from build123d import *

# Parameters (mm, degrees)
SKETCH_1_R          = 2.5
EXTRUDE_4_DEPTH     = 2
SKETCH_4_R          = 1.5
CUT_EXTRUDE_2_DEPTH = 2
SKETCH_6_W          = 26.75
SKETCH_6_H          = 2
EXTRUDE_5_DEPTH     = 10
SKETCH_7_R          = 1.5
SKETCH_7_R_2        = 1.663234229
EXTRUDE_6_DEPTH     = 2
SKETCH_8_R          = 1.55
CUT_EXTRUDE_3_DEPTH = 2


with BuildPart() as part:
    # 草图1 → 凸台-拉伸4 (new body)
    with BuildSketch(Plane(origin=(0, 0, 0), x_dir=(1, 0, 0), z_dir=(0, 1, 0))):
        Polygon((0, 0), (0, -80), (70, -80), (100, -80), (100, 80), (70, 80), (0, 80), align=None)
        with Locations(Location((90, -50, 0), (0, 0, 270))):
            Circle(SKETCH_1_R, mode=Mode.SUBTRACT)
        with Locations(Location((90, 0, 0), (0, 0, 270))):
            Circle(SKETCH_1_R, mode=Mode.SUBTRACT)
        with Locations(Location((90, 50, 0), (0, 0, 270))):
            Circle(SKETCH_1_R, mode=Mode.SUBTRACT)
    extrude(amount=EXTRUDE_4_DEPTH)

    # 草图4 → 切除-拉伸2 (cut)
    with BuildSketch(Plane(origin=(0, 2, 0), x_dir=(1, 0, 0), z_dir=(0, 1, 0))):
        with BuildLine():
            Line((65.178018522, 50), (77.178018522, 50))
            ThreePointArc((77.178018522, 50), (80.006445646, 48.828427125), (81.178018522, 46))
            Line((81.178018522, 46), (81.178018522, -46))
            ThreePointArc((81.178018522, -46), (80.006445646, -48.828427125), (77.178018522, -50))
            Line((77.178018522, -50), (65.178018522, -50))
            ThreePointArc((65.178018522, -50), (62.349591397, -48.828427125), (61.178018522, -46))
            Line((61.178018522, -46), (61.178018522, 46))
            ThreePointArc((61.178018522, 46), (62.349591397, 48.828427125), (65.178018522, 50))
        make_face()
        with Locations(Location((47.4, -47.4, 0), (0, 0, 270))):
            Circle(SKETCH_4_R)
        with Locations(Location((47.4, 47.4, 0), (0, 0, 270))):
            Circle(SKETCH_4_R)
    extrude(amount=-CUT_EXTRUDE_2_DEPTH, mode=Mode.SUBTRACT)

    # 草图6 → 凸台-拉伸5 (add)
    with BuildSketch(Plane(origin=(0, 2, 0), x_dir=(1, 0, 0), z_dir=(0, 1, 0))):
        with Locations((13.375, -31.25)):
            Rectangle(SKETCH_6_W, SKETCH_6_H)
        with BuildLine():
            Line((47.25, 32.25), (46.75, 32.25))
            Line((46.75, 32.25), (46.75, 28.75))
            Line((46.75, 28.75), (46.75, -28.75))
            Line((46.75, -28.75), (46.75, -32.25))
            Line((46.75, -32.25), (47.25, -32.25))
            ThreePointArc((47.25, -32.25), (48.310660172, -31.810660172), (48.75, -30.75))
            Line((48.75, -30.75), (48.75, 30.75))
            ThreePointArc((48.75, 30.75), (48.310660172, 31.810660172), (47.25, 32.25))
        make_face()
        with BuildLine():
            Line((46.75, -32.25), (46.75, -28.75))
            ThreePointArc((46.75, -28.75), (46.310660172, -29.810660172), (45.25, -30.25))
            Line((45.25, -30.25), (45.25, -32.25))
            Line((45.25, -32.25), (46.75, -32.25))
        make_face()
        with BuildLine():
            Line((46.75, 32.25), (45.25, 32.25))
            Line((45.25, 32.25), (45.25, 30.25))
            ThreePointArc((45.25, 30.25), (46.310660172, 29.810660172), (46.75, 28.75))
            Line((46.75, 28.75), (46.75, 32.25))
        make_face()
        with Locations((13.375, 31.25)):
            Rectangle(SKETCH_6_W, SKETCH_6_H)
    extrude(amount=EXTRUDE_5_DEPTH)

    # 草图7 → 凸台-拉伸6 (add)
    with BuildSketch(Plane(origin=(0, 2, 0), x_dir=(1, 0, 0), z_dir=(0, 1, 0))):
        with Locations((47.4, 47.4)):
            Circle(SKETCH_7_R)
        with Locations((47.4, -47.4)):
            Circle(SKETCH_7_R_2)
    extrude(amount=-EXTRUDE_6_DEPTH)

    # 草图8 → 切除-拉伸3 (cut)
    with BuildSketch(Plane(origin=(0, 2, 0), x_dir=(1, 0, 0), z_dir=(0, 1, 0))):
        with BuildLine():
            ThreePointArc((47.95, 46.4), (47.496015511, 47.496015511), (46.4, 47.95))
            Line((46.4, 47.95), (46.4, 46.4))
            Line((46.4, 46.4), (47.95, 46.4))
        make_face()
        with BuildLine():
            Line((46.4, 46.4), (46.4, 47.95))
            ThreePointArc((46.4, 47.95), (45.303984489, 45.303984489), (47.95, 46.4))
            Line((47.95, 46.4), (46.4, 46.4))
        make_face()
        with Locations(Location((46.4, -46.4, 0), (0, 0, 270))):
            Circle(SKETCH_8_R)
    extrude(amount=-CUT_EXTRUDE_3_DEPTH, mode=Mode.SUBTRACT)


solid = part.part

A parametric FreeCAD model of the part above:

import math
import FreeCAD as App
import Part
import Sketcher

V = App.Vector


def add_polygon(sketch, points):
    """Adds a closed chain of lines whose ends are joined by coincident constraints."""
    first, n = sketch.GeometryCount, len(points)
    for a, b in zip(points, points[1:] + points[:1]):
        sketch.addGeometry(Part.LineSegment(App.Vector(*a, 0), App.Vector(*b, 0)), False)
    for i in range(n):
        sketch.addConstraint(Sketcher.Constraint("Coincident", first + i, 2, first + (i + 1) % n, 1))

doc = App.newDocument("Part")
params = doc.addObject("Spreadsheet::Sheet", "Params")
for row, (alias, value) in enumerate([
    ("sketch1_diameter", "5 mm"),
    ("sketch1_width", "100 mm"),
    ("sketch1_height", "160 mm"),
    ("pad1_length", "2 mm"),
    ("sketch2_diameter", "3 mm"),
    ("sketch2_radius", "4 mm"),
    ("sketch2_width", "12 mm"),
    ("sketch2_height", "92 mm"),
    ("pocket1_length", "2 mm"),
    ("sketch3_radius", "1.5 mm"),
    ("sketch3_width", "2 mm"),
    ("sketch3_height", "57.5 mm"),
    ("sketch3_width2", "26.75 mm"),
    ("pad2_length", "10 mm"),
    ("sketch4_diameter", "3 mm"),
    ("pad3_length", "2 mm"),
    ("sketch5_diameter", "3.1 mm"),
    ("pocket2_length", "2 mm"),
], start=1):
    params.set(f"A{row}", alias)
    params.set(f"B{row}", "=" + value)
    params.setAlias(f"B{row}", alias)

body = doc.addObject("PartDesign::Body", "Body")

# Sketch on XZ plane
sketch1 = doc.addObject("Sketcher::SketchObject", "Sketch")
body.addObject(sketch1)
sketch1.AttachmentSupport = (doc.XZ_Plane, [""])
sketch1.MapMode = "FlatFace"
add_polygon(sketch1, [(0, 80), (100, 80), (100, -80), (0, -80)])  # lines 0-3
sketch1.addGeometry(Part.Circle(V(90, 50, 0), V(0, 0, 1), 2.5), False)  # 4
sketch1.addGeometry(Part.Circle(V(90, 0, 0), V(0, 0, 1), 2.5), False)  # 5
sketch1.addGeometry(Part.Circle(V(90, -50, 0), V(0, 0, 1), 2.5), False)  # 6
sketch1.addConstraint(Sketcher.Constraint("Horizontal", 0))
sketch1.addConstraint(Sketcher.Constraint("Vertical", 1))
sketch1.addConstraint(Sketcher.Constraint("Horizontal", 2))
sketch1.addConstraint(Sketcher.Constraint("Vertical", 3))
sketch1.addConstraint(Sketcher.Constraint("Equal", 4, 5))
sketch1.addConstraint(Sketcher.Constraint("Equal", 5, 6))
sketch1.addConstraint(Sketcher.Constraint("Symmetric", 2, 2, 3, 2, -1, 1))
sketch1.addConstraint(Sketcher.Constraint("Symmetric", 4, 3, 6, 3, -1))
sketch1.addConstraint(Sketcher.Constraint("PointOnObject", 5, 3, -1))
sketch1.addConstraint(Sketcher.Constraint("Vertical", 4, 3, 5, 3))
sketch1.addConstraint(Sketcher.Constraint("Diameter", 4, 5.0))
sketch1.addConstraint(Sketcher.Constraint("DistanceX", 0, 1, 0, 2, 100.0))
sketch1.addConstraint(Sketcher.Constraint("DistanceY", 1, 2, 1, 1, 160.0))
sketch1.addConstraint(Sketcher.Constraint("DistanceX", -1, 1, 4, 3, 90.0))
sketch1.addConstraint(Sketcher.Constraint("DistanceY", -1, 1, 4, 3, 50.0))
sketch1.setExpression("Constraints[14]", "Params.sketch1_diameter")
sketch1.setExpression("Constraints[15]", "Params.sketch1_width")
sketch1.setExpression("Constraints[16]", "Params.sketch1_height")
pad1 = doc.addObject("PartDesign::Pad", "Pad")
body.addObject(pad1)
pad1.Profile = sketch1
pad1.setExpression("Length", "Params.pad1_length")
pad1.Reversed = True

# Sketch on XZ plane
sketch2 = doc.addObject("Sketcher::SketchObject", "Sketch001")
body.addObject(sketch2)
sketch2.AttachmentSupport = (doc.XZ_Plane, [""])
sketch2.MapMode = "FlatFace"
sketch2.AttachmentOffset = App.Placement(V(0, 0, -2), App.Rotation())
sketch2.addGeometry(Part.LineSegment(V(77.178019, -50, 0), V(65.178019, -50, 0)), False)
sketch2.addGeometry(Part.ArcOfCircle(Part.Circle(V(65.178019, -46, 0), V(0, 0, 1), 4), math.radians(180), math.radians(270)), False)
sketch2.addGeometry(Part.LineSegment(V(61.178019, -46, 0), V(61.178019, 46, 0)), False)
sketch2.addGeometry(Part.ArcOfCircle(Part.Circle(V(65.178019, 46, 0), V(0, 0, 1), 4), math.radians(90), math.radians(180)), False)
sketch2.addGeometry(Part.LineSegment(V(65.178019, 50, 0), V(77.178019, 50, 0)), False)
sketch2.addGeometry(Part.ArcOfCircle(Part.Circle(V(77.178019, 46, 0), V(0, 0, 1), 4), math.radians(0), math.radians(90)), False)
sketch2.addGeometry(Part.LineSegment(V(81.178019, 46, 0), V(81.178019, -46, 0)), False)
sketch2.addGeometry(Part.ArcOfCircle(Part.Circle(V(77.178019, -46, 0), V(0, 0, 1), 4), math.radians(-90), math.radians(0)), False)
sketch2.addGeometry(Part.Circle(V(47.4, 47.4, 0), V(0, 0, 1), 1.5), False)
sketch2.addGeometry(Part.Circle(V(47.4, -47.4, 0), V(0, 0, 1), 1.5), False)
sketch2.addConstraint(Sketcher.Constraint("Tangent", 0, 2, 1, 2))
sketch2.addConstraint(Sketcher.Constraint("Tangent", 1, 1, 2, 1))
sketch2.addConstraint(Sketcher.Constraint("Tangent", 2, 2, 3, 2))
sketch2.addConstraint(Sketcher.Constraint("Tangent", 3, 1, 4, 1))
sketch2.addConstraint(Sketcher.Constraint("Tangent", 4, 2, 5, 2))
sketch2.addConstraint(Sketcher.Constraint("Tangent", 5, 1, 6, 1))
sketch2.addConstraint(Sketcher.Constraint("Tangent", 6, 2, 7, 2))
sketch2.addConstraint(Sketcher.Constraint("Tangent", 7, 1, 0, 1))
sketch2.addConstraint(Sketcher.Constraint("Horizontal", 0))
sketch2.addConstraint(Sketcher.Constraint("Vertical", 2))
sketch2.addConstraint(Sketcher.Constraint("Horizontal", 4))
sketch2.addConstraint(Sketcher.Constraint("Vertical", 6))
sketch2.addConstraint(Sketcher.Constraint("Equal", 1, 3))
sketch2.addConstraint(Sketcher.Constraint("Equal", 3, 5))
sketch2.addConstraint(Sketcher.Constraint("Equal", 5, 7))
sketch2.addConstraint(Sketcher.Constraint("Equal", 8, 9))
sketch2.addConstraint(Sketcher.Constraint("Symmetric", 8, 3, 9, 3, -1))
sketch2.addConstraint(Sketcher.Constraint("Diameter", 8, 3.0))
sketch2.addConstraint(Sketcher.Constraint("Radius", 1, 4.0))
sketch2.addConstraint(Sketcher.Constraint("DistanceX", 0, 2, 0, 1, 12.0))
sketch2.addConstraint(Sketcher.Constraint("DistanceY", 2, 1, 2, 2, 92.0))
sketch2.addConstraint(Sketcher.Constraint("DistanceY", 1, 3, -1, 1, 46.0))
sketch2.addConstraint(Sketcher.Constraint("DistanceX", -1, 1, 8, 3, 47.4))
sketch2.addConstraint(Sketcher.Constraint("DistanceY", -1, 1, 8, 3, 47.4))
sketch2.addConstraint(Sketcher.Constraint("DistanceX", -1, 1, 1, 3, 65.178019))
sketch2.setExpression("Constraints[17]", "Params.sketch2_diameter")
sketch2.setExpression("Constraints[18]", "Params.sketch2_radius")
sketch2.setExpression("Constraints[19]", "Params.sketch2_width")
sketch2.setExpression("Constraints[20]", "Params.sketch2_height")
pocket1 = doc.addObject("PartDesign::Pocket", "Pocket")
body.addObject(pocket1)
pocket1.Profile = sketch2
pocket1.setExpression("Length", "Params.pocket1_length")
pocket1.Reversed = True

# Sketch on XZ plane
sketch3 = doc.addObject("Sketcher::SketchObject", "Sketch002")
body.addObject(sketch3)
sketch3.AttachmentSupport = (doc.XZ_Plane, [""])
sketch3.MapMode = "FlatFace"
sketch3.AttachmentOffset = App.Placement(V(0, 0, -2), App.Rotation())
add_polygon(sketch3, [(0, 30.25), (0, 32.25), (26.75, 32.25), (26.75, 30.25)])  # lines 0-3
sketch3.addGeometry(Part.LineSegment(V(47.25, -32.25, 0), V(45.25, -32.25, 0)), False)  # 4
sketch3.addGeometry(Part.LineSegment(V(45.25, -32.25, 0), V(45.25, -30.25, 0)), False)  # 5
sketch3.addGeometry(Part.ArcOfCircle(Part.Circle(V(45.25, -28.75, 0), V(0, 0, 1), 1.5), math.radians(-90), math.radians(0)), False)  # 6
sketch3.addGeometry(Part.LineSegment(V(46.75, -28.75, 0), V(46.75, 28.75, 0)), False)  # 7
sketch3.addGeometry(Part.ArcOfCircle(Part.Circle(V(45.25, 28.75, 0), V(0, 0, 1), 1.5), math.radians(0), math.radians(90)), False)  # 8
sketch3.addGeometry(Part.LineSegment(V(45.25, 30.25, 0), V(45.25, 32.25, 0)), False)  # 9
sketch3.addGeometry(Part.LineSegment(V(45.25, 32.25, 0), V(47.25, 32.25, 0)), False)  # 10
sketch3.addGeometry(Part.ArcOfCircle(Part.Circle(V(47.25, 30.75, 0), V(0, 0, 1), 1.5), math.radians(0), math.radians(90)), False)  # 11
sketch3.addGeometry(Part.LineSegment(V(48.75, 30.75, 0), V(48.75, -30.75, 0)), False)  # 12
sketch3.addGeometry(Part.ArcOfCircle(Part.Circle(V(47.25, -30.75, 0), V(0, 0, 1), 1.5), math.radians(-90), math.radians(0)), False)  # 13
add_polygon(sketch3, [(0, -32.25), (0, -30.25), (26.75, -30.25), (26.75, -32.25)])  # lines 14-17
sketch3.addConstraint(Sketcher.Constraint("Coincident", 4, 2, 5, 1))
sketch3.addConstraint(Sketcher.Constraint("Coincident", 5, 2, 6, 1))
sketch3.addConstraint(Sketcher.Constraint("Tangent", 6, 2, 7, 1))
sketch3.addConstraint(Sketcher.Constraint("Tangent", 7, 2, 8, 1))
sketch3.addConstraint(Sketcher.Constraint("Coincident", 8, 2, 9, 1))
sketch3.addConstraint(Sketcher.Constraint("Coincident", 9, 2, 10, 1))
sketch3.addConstraint(Sketcher.Constraint("Tangent", 10, 2, 11, 2))
sketch3.addConstraint(Sketcher.Constraint("Tangent", 11, 1, 12, 1))
sketch3.addConstraint(Sketcher.Constraint("Tangent", 12, 2, 13, 2))
sketch3.addConstraint(Sketcher.Constraint("Tangent", 13, 1, 4, 1))
sketch3.addConstraint(Sketcher.Constraint("Vertical", 0))
sketch3.addConstraint(Sketcher.Constraint("Horizontal", 1))
sketch3.addConstraint(Sketcher.Constraint("Vertical", 2))
sketch3.addConstraint(Sketcher.Constraint("Horizontal", 3))
sketch3.addConstraint(Sketcher.Constraint("Horizontal", 4))
sketch3.addConstraint(Sketcher.Constraint("Vertical", 5))
sketch3.addConstraint(Sketcher.Constraint("Vertical", 7))
sketch3.addConstraint(Sketcher.Constraint("Vertical", 9))
sketch3.addConstraint(Sketcher.Constraint("Horizontal", 10))
sketch3.addConstraint(Sketcher.Constraint("Vertical", 12))
sketch3.addConstraint(Sketcher.Constraint("Vertical", 14))
sketch3.addConstraint(Sketcher.Constraint("Horizontal", 15))
sketch3.addConstraint(Sketcher.Constraint("Vertical", 16))
sketch3.addConstraint(Sketcher.Constraint("Horizontal", 17))
sketch3.addConstraint(Sketcher.Constraint("Equal", 6, 8))
sketch3.addConstraint(Sketcher.Constraint("Equal", 8, 11))
sketch3.addConstraint(Sketcher.Constraint("Equal", 11, 13))
sketch3.addConstraint(Sketcher.Constraint("Symmetric", 3, 2, 14, 2, -1, 1))
sketch3.addConstraint(Sketcher.Constraint("Symmetric", 5, 2, 8, 2, -1))
sketch3.addConstraint(Sketcher.Constraint("Symmetric", 1, 2, 16, 2, -1))
sketch3.addConstraint(Sketcher.Constraint("PointOnObject", 0, 2, -2))
sketch3.addConstraint(Sketcher.Constraint("Horizontal", 3, 2, 8, 2))
sketch3.addConstraint(Sketcher.Constraint("Horizontal", 1, 2, 9, 2))
sketch3.addConstraint(Sketcher.Constraint("Horizontal", 13, 1, 16, 2))
sketch3.addConstraint(Sketcher.Constraint("Vertical", 8, 3, 4, 2))
sketch3.addConstraint(Sketcher.Constraint("Equal", 10, 0))
sketch3.addConstraint(Sketcher.Constraint("Radius", 6, 1.5))
sketch3.addConstraint(Sketcher.Constraint("DistanceX", 4, 2, 4, 1, 2.0))
sketch3.addConstraint(Sketcher.Constraint("DistanceY", 7, 1, 7, 2, 57.5))
sketch3.addConstraint(Sketcher.Constraint("DistanceX", 2, 2, 7, 2, 20.0))
sketch3.addConstraint(Sketcher.Constraint("DistanceX", 1, 1, 1, 2, 26.75))
sketch3.setExpression("Constraints[44]", "Params.sketch3_radius")
sketch3.setExpression("Constraints[45]", "Params.sketch3_width")
sketch3.setExpression("Constraints[46]", "Params.sketch3_height")
sketch3.setExpression("Constraints[48]", "Params.sketch3_width2")
pad2 = doc.addObject("PartDesign::Pad", "Pad001")
body.addObject(pad2)
pad2.Profile = sketch3
pad2.setExpression("Length", "Params.pad2_length")
pad2.Reversed = True

# Sketch on XZ plane
sketch4 = doc.addObject("Sketcher::SketchObject", "Sketch003")
body.addObject(sketch4)
sketch4.AttachmentSupport = (doc.XZ_Plane, [""])
sketch4.MapMode = "FlatFace"
sketch4.AttachmentOffset = App.Placement(V(0, 0, -2), App.Rotation())
sketch4.addGeometry(Part.Circle(V(47.4, -47.4, 0), V(0, 0, 1), 1.5), False)
sketch4.addGeometry(Part.Circle(V(47.4, 47.4, 0), V(0, 0, 1), 1.663234), False)
sketch4.addConstraint(Sketcher.Constraint("Symmetric", 0, 3, 1, 3, -1))
sketch4.addConstraint(Sketcher.Constraint("Diameter", 0, 3.0))
sketch4.addConstraint(Sketcher.Constraint("DistanceX", -1, 1, 0, 3, 47.4))
sketch4.addConstraint(Sketcher.Constraint("DistanceY", 0, 3, -1, 1, 47.4))
sketch4.addConstraint(Sketcher.Constraint("Diameter", 1, 3.326468))
sketch4.setExpression("Constraints[1]", "Params.sketch4_diameter")
pad3 = doc.addObject("PartDesign::Pad", "Pad002")
body.addObject(pad3)
pad3.Profile = sketch4
pad3.setExpression("Length", "Params.pad3_length")

# Sketch on XZ plane
sketch5 = doc.addObject("Sketcher::SketchObject", "Sketch004")
body.addObject(sketch5)
sketch5.AttachmentSupport = (doc.XZ_Plane, [""])
sketch5.MapMode = "FlatFace"
sketch5.AttachmentOffset = App.Placement(V(0, 0, -2), App.Rotation())
sketch5.addGeometry(Part.ArcOfCircle(Part.Circle(V(46.4, -46.4, 0), V(0, 0, 1), 1.55), math.radians(-90), math.radians(0)), False)
sketch5.addGeometry(Part.ArcOfCircle(Part.Circle(V(46.4, -46.4, 0), V(0, 0, 1), 1.55), math.radians(0), math.radians(270)), False)
sketch5.addGeometry(Part.Circle(V(46.4, 46.4, 0), V(0, 0, 1), 1.55), False)
sketch5.addConstraint(Sketcher.Constraint("Tangent", 0, 1, 1, 2))
sketch5.addConstraint(Sketcher.Constraint("Coincident", 1, 1, 0, 2))
sketch5.addConstraint(Sketcher.Constraint("Equal", 1, 2))
sketch5.addConstraint(Sketcher.Constraint("Symmetric", 0, 3, 2, 3, -1))
sketch5.addConstraint(Sketcher.Constraint("Horizontal", 0, 3, 1, 1))
sketch5.addConstraint(Sketcher.Constraint("Vertical", 2, 3, 0, 1))
sketch5.addConstraint(Sketcher.Constraint("Diameter", 2, 3.1))
sketch5.addConstraint(Sketcher.Constraint("DistanceX", -1, 1, 0, 3, 46.4))
sketch5.addConstraint(Sketcher.Constraint("DistanceY", 0, 3, -1, 1, 46.4))
sketch5.setExpression("Constraints[6]", "Params.sketch5_diameter")
pocket2 = doc.addObject("PartDesign::Pocket", "Pocket001")
body.addObject(pocket2)
pocket2.Profile = sketch5
pocket2.setExpression("Length", "Params.pocket2_length")
pocket2.Reversed = True

doc.recompute()
